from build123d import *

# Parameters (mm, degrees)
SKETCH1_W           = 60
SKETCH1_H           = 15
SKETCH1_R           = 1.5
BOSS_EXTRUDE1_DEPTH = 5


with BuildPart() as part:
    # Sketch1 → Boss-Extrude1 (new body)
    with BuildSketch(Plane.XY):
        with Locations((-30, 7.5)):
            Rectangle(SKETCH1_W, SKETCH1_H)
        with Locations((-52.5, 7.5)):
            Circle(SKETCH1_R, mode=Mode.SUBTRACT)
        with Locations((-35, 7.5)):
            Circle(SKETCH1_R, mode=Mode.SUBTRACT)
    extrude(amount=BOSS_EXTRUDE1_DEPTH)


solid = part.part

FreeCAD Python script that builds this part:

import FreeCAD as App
import Part
import Sketcher
from FreeCAD import Vector


def add_polygon(sketch, points):
    """Adds a closed chain of lines whose ends are joined by coincident constraints."""
    first, n = sketch.GeometryCount, len(points)
    for a, b in zip(points, points[1:] + points[:1]):
        sketch.addGeometry(Part.LineSegment(App.Vector(*a, 0), App.Vector(*b, 0)), False)
    for i in range(n):
        sketch.addConstraint(Sketcher.Constraint("Coincident", first + i, 2, first + (i + 1) % n, 1))

doc = App.newDocument("Part")
body = doc.addObject("PartDesign::Body", "Body")

# Sketch on XY plane
sketch1 = doc.addObject("Sketcher::SketchObject", "Sketch")
body.addObject(sketch1)
sketch1.AttachmentSupport = (doc.XY_Plane, [""])
sketch1.MapMode = "FlatFace"
add_polygon(sketch1, [(-60, 15), (-60, 0), (0, 0), (0, 15)])  # lines 0-3
sketch1.addGeometry(Part.Circle(Vector(-52.5, 7.5, 0), Vector(0, 0, 1), 1.5), False)  # 4
sketch1.addGeometry(Part.Circle(Vector(-35, 7.5, 0), Vector(0, 0, 1), 1.5), False)  # 5
sketch1.addConstraint(Sketcher.Constraint("Vertical", 0))
sketch1.addConstraint(Sketcher.Constraint("Horizontal", 1))
sketch1.addConstraint(Sketcher.Constraint("Vertical", 2))
sketch1.addConstraint(Sketcher.Constraint("Horizontal", 3))
sketch1.addConstraint(Sketcher.Constraint("Coincident", 1, 2, -1, 1))
sketch1.addConstraint(Sketcher.Constraint("Equal", 4, 5))
sketch1.addConstraint(Sketcher.Constraint("Horizontal", 4, 3, 5, 3))
sketch1.addConstraint(Sketcher.Constraint("Diameter", 4, 3.0))
sketch1.addConstraint(Sketcher.Constraint("DistanceX", 1, 1, 1, 2, 60.0))
sketch1.addConstraint(Sketcher.Constraint("DistanceY", 0, 2, 0, 1, 15.0))
sketch1.addConstraint(Sketcher.Constraint("DistanceX", 5, 3, -1, 1, 35.0))
sketch1.addConstraint(Sketcher.Constraint("DistanceX", 4, 3, -1, 1, 52.5))
sketch1.addConstraint(Sketcher.Constraint("DistanceY", -1, 1, 4, 3, 7.5))
pad1 = doc.addObject("PartDesign::Pad", "Pad")
body.addObject(pad1)
pad1.Profile = sketch1
pad1.Length = 5

doc.recompute()
